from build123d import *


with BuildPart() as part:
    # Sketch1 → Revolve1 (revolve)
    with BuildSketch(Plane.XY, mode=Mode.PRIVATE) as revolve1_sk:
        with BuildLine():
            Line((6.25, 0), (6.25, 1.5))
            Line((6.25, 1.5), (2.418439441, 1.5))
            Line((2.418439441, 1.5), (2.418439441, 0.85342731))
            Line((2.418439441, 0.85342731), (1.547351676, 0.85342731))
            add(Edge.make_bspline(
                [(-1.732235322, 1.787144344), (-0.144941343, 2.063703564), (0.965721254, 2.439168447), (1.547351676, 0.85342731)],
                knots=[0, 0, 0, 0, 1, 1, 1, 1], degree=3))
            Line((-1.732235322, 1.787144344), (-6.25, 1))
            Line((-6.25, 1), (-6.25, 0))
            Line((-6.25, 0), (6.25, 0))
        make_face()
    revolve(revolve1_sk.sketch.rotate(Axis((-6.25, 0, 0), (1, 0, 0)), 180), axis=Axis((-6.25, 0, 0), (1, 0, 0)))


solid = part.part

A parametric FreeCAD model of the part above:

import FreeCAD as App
import Part
import Sketcher

V = App.Vector

doc = App.newDocument("Part")
params = doc.addObject("Spreadsheet::Sheet", "Params")
for row, (alias, value) in enumerate([
    ("sketch1_height", "1 mm"),
    ("sketch1_width", "12.5 mm"),
    ("sketch1_height2", "1.5 mm"),
    ("revolution_angle", "360 deg"),
], start=1):
    params.set(f"A{row}", alias)
    params.set(f"B{row}", "=" + value)
    params.setAlias(f"B{row}", alias)

body = doc.addObject("PartDesign::Body", "Body")

sketch1 = body.newObject("Sketcher::SketchObject", "Sketch")
sketch1.AttachmentSupport = (doc.getObject("XY_Plane"), [""])
sketch1.MapMode = "FlatFace"
sketch1.addGeometry(Part.LineSegment(V(6.25, 0, 0), V(6.25, 1.5, 0)), False)
sketch1.addGeometry(Part.LineSegment(V(6.25, 1.5, 0), V(2.418439, 1.5, 0)), False)
sketch1.addGeometry(Part.LineSegment(V(2.418439, 1.5, 0), V(2.418439, 0.853427, 0)), False)
sketch1.addGeometry(Part.LineSegment(V(2.418439, 0.853427, 0), V(1.547352, 0.853427, 0)), False)
sketch1.addGeometry(Part.BSplineCurve([V(-1.732235, 1.787144, 0), V(-0.144941, 2.063704, 0), V(0.965721, 2.439168, 0), V(1.547352, 0.853427, 0)], [4, 4], [0, 1], False, 3, [1, 1, 1, 1], False), False)
sketch1.addGeometry(Part.LineSegment(V(-1.732235, 1.787144, 0), V(-6.25, 1, 0)), False)
sketch1.addGeometry(Part.LineSegment(V(-6.25, 1, 0), V(-6.25, 0, 0)), False)
sketch1.addGeometry(Part.LineSegment(V(-6.25, 0, 0), V(6.25, 0, 0)), False)
sketch1.addConstraint(Sketcher.Constraint("Block", 4))
sketch1.addConstraint(Sketcher.Constraint("Coincident", 0, 2, 1, 1))
sketch1.addConstraint(Sketcher.Constraint("Coincident", 1, 2, 2, 1))
sketch1.addConstraint(Sketcher.Constraint("Coincident", 2, 2, 3, 1))
sketch1.addConstraint(Sketcher.Constraint("Coincident", 3, 2, 4, 2))
sketch1.addConstraint(Sketcher.Constraint("Coincident", 4, 1, 5, 1))
sketch1.addConstraint(Sketcher.Constraint("Coincident", 5, 2, 6, 1))
sketch1.addConstraint(Sketcher.Constraint("Coincident", 6, 2, 7, 1))
sketch1.addConstraint(Sketcher.Constraint("Coincident", 7, 2, 0, 1))
sketch1.addConstraint(Sketcher.Constraint("Vertical", 0))
sketch1.addConstraint(Sketcher.Constraint("Horizontal", 1))
sketch1.addConstraint(Sketcher.Constraint("Vertical", 2))
sketch1.addConstraint(Sketcher.Constraint("Horizontal", 3))
sketch1.addConstraint(Sketcher.Constraint("Vertical", 6))
sketch1.addConstraint(Sketcher.Constraint("Horizontal", 7))
sketch1.addConstraint(Sketcher.Constraint("Symmetric", 6, 2, 7, 2, -1, 1))
sketch1.addConstraint(Sketcher.Constraint("DistanceY", 6, 2, 6, 1, 1.0))
sketch1.addConstraint(Sketcher.Constraint("DistanceX", 7, 1, 7, 2, 12.5))
sketch1.addConstraint(Sketcher.Constraint("DistanceY", 0, 1, 0, 2, 1.5))
sketch1.addConstraint(Sketcher.Constraint("DistanceX", 1, 2, 1, 1, 3.831561))
sketch1.setExpression("Constraints[16]", "Params.sketch1_height")
sketch1.setExpression("Constraints[17]", "Params.sketch1_width")
sketch1.setExpression("Constraints[18]", "Params.sketch1_height2")
revolution = body.newObject("PartDesign::Revolution", "Revolution")
revolution.Profile = sketch1
revolution.ReferenceAxis = (sketch1, ["H_Axis"])
revolution.setExpression("Angle", "Params.revolution_angle")

doc.recompute()
